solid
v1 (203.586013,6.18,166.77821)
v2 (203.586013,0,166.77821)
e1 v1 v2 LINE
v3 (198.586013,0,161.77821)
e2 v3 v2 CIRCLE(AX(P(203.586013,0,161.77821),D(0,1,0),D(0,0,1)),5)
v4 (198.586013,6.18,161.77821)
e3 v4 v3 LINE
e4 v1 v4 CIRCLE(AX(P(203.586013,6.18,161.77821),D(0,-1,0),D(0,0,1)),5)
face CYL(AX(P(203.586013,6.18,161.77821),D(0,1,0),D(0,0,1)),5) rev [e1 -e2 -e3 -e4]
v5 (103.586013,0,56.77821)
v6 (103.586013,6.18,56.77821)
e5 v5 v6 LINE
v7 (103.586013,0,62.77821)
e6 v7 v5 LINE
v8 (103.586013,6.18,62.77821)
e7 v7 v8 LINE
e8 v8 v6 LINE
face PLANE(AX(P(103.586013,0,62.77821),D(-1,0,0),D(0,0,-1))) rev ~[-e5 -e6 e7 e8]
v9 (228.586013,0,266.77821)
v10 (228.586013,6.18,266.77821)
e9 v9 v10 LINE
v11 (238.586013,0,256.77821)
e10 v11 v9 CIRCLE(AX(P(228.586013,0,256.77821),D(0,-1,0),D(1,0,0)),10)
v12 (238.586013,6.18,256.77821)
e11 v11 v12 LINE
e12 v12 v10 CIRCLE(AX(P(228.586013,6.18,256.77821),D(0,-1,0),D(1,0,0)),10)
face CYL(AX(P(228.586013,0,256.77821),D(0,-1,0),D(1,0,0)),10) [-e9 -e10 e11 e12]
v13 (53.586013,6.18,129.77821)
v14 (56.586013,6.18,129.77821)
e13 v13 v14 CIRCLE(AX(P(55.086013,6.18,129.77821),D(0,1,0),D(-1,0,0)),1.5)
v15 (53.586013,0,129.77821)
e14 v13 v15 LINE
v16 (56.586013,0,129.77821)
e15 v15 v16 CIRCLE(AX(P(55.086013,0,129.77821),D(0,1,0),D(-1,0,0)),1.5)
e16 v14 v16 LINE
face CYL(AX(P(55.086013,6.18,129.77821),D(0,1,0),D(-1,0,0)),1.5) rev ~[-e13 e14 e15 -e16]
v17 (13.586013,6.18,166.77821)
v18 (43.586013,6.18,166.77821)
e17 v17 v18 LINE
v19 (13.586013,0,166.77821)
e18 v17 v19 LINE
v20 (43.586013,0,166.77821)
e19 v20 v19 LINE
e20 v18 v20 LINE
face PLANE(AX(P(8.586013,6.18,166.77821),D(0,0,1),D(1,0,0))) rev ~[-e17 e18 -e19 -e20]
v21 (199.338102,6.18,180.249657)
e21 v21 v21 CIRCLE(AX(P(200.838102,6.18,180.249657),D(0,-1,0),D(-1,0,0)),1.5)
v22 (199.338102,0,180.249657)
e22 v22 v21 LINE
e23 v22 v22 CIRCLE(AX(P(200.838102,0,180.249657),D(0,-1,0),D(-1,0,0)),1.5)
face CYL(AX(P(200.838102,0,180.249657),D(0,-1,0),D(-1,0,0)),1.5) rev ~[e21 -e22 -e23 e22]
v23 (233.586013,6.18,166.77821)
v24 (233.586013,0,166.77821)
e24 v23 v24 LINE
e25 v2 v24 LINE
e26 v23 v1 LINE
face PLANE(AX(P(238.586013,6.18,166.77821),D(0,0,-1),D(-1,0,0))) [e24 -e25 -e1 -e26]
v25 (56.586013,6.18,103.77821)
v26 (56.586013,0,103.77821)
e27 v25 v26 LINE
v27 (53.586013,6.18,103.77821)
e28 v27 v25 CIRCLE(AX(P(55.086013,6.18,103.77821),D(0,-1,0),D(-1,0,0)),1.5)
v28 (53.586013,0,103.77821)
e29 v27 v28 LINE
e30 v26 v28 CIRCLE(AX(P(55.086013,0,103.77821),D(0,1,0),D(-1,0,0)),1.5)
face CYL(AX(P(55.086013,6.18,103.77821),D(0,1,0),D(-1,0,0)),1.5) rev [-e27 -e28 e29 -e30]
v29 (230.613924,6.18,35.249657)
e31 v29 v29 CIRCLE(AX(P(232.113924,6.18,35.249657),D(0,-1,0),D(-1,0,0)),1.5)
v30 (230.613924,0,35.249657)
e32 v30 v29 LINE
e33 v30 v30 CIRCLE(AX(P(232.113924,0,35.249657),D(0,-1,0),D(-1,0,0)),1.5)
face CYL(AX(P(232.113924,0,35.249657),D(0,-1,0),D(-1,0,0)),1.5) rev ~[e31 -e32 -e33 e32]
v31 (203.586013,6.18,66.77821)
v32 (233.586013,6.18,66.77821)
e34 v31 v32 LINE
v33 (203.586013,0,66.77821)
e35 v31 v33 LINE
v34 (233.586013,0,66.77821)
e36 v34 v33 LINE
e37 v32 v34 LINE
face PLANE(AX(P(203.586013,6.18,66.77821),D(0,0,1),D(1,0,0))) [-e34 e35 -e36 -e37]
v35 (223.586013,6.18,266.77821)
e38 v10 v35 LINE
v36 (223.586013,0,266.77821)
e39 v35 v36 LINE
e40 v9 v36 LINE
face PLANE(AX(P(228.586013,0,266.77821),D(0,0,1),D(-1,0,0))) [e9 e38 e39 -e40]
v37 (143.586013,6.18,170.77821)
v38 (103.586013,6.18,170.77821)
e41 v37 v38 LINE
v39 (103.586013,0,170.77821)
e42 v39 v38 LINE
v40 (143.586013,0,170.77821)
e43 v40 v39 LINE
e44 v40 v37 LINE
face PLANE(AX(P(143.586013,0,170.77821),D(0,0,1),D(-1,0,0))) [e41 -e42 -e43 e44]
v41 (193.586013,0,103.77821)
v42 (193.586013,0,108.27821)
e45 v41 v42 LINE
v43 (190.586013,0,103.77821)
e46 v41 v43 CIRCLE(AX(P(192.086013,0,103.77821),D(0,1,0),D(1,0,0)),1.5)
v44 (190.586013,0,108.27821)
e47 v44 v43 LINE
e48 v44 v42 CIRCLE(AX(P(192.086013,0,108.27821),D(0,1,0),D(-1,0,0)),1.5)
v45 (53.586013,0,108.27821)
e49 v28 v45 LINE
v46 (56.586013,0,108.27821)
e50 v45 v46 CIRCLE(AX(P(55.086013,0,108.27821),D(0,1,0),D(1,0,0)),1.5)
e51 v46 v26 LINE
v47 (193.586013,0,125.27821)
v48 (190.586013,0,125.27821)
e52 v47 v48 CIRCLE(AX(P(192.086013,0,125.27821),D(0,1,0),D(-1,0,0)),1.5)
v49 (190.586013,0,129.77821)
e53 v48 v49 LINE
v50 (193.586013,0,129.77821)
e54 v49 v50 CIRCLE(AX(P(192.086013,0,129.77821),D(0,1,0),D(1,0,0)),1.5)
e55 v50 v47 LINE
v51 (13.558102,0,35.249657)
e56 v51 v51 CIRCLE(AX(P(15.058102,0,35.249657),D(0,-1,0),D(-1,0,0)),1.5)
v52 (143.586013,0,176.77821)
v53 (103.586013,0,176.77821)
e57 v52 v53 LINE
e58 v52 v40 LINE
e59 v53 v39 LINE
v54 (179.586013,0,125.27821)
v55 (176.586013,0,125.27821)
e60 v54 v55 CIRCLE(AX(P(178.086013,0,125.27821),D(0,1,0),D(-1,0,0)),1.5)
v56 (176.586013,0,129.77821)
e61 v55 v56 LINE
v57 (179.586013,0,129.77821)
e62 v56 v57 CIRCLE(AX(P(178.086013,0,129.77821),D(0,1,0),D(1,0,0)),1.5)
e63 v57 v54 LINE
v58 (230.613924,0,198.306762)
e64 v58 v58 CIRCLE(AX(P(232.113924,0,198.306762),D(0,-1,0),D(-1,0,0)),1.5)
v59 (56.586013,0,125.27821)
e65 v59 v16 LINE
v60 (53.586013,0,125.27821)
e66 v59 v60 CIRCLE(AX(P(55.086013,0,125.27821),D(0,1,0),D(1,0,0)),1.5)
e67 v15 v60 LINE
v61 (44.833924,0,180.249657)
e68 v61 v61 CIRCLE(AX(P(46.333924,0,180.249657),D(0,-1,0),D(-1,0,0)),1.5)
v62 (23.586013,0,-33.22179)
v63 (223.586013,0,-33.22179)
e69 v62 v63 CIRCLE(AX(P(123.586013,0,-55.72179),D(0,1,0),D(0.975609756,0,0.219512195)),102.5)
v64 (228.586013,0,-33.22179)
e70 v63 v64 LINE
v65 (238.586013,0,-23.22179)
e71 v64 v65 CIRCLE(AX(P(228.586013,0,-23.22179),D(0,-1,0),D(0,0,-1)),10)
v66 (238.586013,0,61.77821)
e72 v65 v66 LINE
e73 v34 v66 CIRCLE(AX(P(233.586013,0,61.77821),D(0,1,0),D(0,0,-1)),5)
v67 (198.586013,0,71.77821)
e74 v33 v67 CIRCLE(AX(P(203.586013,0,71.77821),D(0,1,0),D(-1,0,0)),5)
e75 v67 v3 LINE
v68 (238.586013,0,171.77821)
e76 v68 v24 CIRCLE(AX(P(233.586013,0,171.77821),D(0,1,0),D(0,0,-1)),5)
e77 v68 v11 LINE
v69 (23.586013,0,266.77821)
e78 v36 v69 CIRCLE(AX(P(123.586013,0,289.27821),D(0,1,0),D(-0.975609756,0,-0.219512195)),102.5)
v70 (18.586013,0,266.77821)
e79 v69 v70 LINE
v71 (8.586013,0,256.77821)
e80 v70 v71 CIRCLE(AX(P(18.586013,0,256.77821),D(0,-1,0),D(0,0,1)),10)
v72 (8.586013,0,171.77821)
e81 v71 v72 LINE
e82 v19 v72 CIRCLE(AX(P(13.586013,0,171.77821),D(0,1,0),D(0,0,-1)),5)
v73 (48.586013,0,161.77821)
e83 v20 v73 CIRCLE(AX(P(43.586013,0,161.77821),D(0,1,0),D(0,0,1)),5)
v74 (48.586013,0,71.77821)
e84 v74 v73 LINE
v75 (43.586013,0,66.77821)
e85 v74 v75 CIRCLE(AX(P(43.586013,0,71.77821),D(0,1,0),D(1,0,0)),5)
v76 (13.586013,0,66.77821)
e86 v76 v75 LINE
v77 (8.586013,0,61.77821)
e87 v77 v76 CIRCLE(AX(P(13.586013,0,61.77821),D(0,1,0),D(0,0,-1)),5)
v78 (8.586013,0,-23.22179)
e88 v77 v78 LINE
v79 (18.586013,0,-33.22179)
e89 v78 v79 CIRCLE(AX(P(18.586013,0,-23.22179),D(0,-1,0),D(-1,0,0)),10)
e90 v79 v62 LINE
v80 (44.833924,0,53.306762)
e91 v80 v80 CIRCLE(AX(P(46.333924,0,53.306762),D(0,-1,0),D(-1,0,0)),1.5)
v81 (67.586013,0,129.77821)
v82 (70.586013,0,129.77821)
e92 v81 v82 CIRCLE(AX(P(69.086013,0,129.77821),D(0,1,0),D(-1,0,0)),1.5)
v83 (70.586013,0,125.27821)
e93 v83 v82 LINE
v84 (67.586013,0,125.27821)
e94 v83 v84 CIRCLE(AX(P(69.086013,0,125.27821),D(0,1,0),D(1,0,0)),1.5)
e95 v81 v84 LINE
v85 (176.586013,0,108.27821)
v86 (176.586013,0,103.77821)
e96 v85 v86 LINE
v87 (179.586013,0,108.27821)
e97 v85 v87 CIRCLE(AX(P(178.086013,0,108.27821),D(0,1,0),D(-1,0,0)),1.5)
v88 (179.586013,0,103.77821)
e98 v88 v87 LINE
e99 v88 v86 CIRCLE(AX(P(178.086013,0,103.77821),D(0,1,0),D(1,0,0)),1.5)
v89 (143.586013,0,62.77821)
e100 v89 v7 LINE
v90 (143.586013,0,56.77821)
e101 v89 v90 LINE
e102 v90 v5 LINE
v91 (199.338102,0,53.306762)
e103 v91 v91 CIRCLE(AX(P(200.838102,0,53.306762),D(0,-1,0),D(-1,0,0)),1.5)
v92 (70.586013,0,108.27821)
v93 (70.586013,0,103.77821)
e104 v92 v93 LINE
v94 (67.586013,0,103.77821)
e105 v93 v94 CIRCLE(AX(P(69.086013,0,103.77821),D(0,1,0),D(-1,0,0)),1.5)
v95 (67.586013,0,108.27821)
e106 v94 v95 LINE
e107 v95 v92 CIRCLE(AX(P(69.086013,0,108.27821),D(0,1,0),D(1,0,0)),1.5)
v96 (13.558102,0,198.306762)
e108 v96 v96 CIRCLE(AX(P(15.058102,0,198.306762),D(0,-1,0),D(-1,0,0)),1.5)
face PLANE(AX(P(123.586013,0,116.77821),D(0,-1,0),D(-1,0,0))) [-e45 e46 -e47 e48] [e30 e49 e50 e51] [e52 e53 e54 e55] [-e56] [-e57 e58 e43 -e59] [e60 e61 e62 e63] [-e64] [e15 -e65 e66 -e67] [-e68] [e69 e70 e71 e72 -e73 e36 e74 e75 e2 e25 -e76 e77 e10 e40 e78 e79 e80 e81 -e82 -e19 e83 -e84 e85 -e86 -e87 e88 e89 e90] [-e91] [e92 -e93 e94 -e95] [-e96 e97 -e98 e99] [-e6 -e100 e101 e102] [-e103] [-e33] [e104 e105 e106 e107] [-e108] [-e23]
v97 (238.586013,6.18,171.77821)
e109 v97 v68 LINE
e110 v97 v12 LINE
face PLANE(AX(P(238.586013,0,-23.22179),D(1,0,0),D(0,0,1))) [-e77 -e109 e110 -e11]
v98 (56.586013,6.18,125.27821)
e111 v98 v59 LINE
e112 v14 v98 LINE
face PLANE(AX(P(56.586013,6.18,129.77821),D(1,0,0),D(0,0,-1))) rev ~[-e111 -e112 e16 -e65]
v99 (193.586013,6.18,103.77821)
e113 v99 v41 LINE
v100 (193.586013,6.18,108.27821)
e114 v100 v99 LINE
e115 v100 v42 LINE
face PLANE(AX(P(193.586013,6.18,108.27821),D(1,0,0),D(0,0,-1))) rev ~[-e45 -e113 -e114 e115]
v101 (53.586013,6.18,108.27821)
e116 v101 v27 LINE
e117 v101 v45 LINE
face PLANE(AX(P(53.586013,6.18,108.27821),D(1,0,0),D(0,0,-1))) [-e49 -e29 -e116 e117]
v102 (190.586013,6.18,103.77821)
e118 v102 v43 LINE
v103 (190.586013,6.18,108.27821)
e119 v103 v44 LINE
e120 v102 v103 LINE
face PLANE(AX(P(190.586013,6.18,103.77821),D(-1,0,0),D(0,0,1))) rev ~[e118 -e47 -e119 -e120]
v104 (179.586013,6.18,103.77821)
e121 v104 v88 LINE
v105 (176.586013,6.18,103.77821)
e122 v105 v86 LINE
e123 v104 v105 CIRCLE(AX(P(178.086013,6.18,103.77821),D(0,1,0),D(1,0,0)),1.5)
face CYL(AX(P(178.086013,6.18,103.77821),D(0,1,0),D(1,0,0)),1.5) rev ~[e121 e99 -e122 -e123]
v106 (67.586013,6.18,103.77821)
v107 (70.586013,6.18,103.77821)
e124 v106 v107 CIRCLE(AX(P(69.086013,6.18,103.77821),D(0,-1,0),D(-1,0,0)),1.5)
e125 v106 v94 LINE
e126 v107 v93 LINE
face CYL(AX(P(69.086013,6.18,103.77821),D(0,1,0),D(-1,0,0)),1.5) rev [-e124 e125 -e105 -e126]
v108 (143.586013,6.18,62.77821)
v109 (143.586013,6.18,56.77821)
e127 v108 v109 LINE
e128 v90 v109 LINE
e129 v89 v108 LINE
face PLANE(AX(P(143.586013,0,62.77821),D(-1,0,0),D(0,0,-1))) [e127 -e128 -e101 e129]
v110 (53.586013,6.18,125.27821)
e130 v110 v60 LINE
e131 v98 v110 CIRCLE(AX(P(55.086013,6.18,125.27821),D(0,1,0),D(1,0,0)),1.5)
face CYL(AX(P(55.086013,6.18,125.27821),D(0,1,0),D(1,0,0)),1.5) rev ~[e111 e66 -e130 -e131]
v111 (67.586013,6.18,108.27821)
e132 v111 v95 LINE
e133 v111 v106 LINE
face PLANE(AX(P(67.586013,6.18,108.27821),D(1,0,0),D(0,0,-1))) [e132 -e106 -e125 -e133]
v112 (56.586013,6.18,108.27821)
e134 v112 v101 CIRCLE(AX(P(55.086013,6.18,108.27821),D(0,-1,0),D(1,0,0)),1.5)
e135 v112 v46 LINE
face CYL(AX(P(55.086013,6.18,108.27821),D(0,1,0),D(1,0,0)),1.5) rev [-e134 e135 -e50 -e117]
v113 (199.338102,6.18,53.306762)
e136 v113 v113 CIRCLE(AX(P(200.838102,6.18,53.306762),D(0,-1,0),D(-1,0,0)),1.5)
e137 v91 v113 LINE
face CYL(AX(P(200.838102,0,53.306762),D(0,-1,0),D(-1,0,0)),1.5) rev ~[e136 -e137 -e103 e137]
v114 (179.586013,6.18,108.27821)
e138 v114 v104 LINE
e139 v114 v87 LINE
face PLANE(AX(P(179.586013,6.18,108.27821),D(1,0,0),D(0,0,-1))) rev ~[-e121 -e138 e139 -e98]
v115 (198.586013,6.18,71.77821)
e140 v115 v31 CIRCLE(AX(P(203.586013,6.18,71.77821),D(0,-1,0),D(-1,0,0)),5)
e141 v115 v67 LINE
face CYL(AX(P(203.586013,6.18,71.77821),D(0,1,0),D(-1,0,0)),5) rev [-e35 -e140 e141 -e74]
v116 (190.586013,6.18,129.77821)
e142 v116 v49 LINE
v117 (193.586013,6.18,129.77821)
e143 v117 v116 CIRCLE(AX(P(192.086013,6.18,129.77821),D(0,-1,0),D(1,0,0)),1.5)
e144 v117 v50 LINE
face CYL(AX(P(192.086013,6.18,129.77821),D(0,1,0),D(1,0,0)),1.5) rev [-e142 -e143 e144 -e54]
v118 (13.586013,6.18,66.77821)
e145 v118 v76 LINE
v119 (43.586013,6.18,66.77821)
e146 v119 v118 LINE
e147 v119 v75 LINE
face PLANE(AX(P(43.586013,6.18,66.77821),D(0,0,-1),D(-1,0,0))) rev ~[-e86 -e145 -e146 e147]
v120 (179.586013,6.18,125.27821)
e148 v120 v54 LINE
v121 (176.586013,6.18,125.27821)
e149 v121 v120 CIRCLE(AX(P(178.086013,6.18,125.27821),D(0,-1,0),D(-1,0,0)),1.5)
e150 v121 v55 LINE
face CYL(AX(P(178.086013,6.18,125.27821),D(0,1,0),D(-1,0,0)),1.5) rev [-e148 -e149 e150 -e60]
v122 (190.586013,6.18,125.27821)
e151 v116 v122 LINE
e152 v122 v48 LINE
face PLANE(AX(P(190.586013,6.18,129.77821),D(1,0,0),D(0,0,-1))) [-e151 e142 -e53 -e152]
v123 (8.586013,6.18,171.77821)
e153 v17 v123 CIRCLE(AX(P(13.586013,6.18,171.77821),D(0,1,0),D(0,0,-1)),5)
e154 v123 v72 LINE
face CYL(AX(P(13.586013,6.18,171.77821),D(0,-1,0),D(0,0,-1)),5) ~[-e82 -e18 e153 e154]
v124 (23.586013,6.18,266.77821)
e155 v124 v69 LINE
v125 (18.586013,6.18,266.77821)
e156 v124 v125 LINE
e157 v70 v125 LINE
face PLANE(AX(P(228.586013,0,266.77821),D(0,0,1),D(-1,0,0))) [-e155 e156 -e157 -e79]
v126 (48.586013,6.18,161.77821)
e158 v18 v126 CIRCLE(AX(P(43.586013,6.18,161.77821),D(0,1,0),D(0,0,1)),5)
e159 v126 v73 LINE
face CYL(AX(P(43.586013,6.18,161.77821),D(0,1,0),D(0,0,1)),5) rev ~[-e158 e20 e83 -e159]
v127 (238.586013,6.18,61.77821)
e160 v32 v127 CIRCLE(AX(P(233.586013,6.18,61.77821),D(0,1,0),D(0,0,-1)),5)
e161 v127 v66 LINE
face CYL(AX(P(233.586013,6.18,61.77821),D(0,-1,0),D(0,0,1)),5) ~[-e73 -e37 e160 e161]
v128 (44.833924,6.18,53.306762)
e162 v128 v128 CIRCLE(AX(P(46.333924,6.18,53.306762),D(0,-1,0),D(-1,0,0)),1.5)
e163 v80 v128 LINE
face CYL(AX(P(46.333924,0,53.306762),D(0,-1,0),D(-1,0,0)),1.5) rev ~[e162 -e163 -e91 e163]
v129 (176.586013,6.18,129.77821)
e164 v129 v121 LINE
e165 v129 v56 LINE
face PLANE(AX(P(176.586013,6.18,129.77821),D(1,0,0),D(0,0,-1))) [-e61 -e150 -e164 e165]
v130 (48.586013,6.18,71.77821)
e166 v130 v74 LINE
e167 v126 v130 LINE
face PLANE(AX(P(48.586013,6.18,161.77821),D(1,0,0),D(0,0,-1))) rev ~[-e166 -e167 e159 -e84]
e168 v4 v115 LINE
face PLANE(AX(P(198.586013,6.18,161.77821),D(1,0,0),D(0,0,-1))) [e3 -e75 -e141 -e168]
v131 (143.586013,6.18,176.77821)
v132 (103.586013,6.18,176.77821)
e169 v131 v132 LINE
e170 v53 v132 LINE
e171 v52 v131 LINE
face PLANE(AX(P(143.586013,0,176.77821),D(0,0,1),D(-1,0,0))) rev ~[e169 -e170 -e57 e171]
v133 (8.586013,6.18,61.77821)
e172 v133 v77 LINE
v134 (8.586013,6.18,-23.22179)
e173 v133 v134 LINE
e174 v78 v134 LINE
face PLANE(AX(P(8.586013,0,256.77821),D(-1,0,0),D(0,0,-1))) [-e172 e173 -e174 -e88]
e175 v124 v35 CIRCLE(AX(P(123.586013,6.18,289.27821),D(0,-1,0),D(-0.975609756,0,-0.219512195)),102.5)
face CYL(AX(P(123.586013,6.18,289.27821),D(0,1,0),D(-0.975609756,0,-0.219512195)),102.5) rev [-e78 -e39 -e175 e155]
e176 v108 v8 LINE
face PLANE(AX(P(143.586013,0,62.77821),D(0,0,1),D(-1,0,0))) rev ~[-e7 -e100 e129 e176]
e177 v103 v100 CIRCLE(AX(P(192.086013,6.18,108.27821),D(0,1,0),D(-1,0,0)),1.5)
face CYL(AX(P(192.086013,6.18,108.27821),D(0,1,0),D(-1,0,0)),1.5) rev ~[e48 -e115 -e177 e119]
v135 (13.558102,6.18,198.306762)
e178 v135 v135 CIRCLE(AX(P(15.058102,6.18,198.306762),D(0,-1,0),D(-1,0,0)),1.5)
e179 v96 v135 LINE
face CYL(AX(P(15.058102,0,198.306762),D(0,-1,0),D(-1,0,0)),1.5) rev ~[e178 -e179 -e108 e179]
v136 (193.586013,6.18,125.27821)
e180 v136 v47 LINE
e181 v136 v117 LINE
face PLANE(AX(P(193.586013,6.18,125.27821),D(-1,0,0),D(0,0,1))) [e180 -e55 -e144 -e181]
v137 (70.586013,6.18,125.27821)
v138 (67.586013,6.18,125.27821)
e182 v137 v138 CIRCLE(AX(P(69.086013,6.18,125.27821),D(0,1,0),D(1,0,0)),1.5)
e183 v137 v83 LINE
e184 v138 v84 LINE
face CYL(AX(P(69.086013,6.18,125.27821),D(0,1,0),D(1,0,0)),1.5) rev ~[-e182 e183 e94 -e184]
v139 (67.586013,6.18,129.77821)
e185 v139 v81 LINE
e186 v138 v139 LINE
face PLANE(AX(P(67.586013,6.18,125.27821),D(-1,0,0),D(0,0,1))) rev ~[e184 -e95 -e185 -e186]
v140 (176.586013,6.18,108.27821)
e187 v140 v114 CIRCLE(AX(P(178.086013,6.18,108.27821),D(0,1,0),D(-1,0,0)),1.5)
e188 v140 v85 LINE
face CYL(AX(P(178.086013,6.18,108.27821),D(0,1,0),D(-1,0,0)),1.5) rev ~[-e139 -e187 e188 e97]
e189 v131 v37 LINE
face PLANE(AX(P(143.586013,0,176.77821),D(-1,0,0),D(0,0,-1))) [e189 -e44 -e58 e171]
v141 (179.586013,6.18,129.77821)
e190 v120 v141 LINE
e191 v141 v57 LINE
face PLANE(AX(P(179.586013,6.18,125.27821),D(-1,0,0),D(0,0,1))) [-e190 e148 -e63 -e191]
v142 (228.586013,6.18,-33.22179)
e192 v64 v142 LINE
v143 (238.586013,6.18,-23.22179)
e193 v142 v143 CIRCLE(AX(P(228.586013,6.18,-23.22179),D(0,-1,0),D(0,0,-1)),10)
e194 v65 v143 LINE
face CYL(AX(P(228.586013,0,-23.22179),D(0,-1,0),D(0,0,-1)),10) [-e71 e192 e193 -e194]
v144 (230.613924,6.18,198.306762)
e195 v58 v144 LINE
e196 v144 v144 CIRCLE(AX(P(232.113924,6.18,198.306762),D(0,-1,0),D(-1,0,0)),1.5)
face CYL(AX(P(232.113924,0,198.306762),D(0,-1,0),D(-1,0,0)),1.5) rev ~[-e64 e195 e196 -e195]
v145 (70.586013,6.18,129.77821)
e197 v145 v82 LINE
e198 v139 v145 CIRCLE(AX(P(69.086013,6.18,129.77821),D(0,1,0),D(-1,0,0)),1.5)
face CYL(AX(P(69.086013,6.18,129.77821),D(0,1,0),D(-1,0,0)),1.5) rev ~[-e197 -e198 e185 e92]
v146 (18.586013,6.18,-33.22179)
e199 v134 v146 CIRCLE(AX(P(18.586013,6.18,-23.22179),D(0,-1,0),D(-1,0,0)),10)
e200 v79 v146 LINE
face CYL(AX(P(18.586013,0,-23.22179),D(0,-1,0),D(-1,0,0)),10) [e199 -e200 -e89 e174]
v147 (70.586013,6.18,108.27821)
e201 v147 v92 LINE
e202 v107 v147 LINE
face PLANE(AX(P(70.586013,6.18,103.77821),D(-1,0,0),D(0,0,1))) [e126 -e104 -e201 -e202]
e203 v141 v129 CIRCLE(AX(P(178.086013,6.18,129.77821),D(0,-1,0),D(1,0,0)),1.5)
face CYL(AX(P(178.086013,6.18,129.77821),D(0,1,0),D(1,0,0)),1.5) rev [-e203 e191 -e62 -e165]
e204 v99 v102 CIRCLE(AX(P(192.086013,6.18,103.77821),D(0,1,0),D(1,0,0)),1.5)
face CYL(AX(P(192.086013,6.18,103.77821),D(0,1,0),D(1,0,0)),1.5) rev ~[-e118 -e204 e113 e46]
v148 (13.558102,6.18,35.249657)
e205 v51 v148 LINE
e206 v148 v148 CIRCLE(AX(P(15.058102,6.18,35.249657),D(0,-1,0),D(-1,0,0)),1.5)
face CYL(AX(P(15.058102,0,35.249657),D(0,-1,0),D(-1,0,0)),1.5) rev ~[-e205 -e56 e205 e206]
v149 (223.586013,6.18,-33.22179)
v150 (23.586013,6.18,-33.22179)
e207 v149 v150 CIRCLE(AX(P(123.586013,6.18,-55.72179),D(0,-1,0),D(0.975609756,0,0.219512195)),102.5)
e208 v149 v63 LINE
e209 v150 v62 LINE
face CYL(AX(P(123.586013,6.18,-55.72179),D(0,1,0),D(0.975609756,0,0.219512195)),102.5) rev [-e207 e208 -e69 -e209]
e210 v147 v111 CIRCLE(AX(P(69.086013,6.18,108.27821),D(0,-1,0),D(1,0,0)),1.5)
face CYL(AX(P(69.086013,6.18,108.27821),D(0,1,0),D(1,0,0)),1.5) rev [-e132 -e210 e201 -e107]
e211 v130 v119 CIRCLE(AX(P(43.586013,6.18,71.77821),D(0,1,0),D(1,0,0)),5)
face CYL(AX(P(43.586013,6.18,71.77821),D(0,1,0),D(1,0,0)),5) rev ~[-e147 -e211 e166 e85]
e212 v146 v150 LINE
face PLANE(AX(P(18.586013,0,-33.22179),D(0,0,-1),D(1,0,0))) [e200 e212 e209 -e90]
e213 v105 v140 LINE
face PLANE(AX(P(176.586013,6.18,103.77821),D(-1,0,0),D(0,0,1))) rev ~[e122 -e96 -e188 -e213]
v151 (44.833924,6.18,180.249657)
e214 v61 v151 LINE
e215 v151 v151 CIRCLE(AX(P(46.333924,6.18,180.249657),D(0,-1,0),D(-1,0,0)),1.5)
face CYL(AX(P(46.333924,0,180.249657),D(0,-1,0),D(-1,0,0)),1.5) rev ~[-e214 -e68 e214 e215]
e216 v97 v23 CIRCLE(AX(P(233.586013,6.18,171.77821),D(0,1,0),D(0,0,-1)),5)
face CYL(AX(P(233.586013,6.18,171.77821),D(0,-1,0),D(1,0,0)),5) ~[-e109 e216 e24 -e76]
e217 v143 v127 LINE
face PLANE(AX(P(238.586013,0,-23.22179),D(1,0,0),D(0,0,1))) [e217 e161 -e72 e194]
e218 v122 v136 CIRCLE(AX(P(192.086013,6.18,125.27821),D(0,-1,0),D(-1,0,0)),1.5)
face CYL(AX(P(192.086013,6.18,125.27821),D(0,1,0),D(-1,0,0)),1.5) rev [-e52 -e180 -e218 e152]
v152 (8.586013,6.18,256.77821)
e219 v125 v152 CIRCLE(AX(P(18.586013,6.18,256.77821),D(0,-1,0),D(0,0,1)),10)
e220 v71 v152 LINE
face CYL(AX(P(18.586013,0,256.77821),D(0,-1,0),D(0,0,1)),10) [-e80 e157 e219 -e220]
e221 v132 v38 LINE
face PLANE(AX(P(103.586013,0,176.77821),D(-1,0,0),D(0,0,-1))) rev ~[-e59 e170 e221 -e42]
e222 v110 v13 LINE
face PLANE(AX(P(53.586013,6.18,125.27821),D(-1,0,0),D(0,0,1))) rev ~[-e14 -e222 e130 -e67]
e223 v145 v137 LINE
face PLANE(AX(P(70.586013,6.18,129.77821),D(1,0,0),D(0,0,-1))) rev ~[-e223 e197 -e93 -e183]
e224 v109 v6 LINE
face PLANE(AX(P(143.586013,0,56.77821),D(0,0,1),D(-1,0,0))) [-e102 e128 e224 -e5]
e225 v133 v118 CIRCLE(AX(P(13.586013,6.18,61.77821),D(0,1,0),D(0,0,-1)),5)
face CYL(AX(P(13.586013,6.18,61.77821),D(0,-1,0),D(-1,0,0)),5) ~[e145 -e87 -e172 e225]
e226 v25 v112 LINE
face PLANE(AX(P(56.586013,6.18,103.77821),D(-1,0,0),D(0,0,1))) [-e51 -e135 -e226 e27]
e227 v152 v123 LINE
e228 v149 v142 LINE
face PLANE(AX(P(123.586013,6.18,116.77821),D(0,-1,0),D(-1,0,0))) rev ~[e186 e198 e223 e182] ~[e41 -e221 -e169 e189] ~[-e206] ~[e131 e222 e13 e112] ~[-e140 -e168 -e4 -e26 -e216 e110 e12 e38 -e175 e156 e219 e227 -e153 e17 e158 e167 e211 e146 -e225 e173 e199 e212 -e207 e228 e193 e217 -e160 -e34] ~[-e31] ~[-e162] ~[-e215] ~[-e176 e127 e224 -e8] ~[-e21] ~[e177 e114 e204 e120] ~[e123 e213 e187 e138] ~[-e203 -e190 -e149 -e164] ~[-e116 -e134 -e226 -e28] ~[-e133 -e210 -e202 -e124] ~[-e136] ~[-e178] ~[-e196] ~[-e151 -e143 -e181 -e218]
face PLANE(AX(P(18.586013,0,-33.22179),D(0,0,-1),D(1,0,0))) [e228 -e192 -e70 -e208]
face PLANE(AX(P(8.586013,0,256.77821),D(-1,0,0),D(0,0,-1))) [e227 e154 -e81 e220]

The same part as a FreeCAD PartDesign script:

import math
import FreeCAD as App
import Part
import Sketcher
from FreeCAD import Vector
Q = App.Units.Quantity


def edges_at(feature, points):
    """Names of the edges that pass closest to the given points."""
    edges = feature.Shape.Edges
    near = lambda p: min(range(len(edges)), key=lambda i: edges[i].distToShape(Part.Vertex(*p))[0])
    return sorted({f"Edge{near(p) + 1}" for p in points})

doc = App.newDocument("Part")
body = doc.addObject("PartDesign::Body", "Body")

sketch1 = body.newObject("Sketcher::SketchObject", "Sketch")
sketch1.AttachmentSupport = (doc.getObject("XZ_Plane"), [""])
sketch1.MapMode = "FlatFace"
sketch1.addGeometry(Part.LineSegment(Vector(228.586013, -33.22179, 0), Vector(18.586013, -33.22179, 0)), False)
sketch1.addGeometry(Part.ArcOfCircle(Part.Circle(Vector(18.586013, -23.22179, 0), Vector(0, 0, 1), 10), math.radians(180), math.radians(270)), False)
sketch1.addGeometry(Part.LineSegment(Vector(8.586013, -23.22179, 0), Vector(8.586013, 256.77821, 0)), False)
sketch1.addGeometry(Part.ArcOfCircle(Part.Circle(Vector(18.586013, 256.77821, 0), Vector(0, 0, 1), 10), math.radians(90), math.radians(180)), False)
sketch1.addGeometry(Part.LineSegment(Vector(18.586013, 266.77821, 0), Vector(228.586013, 266.77821, 0)), False)
sketch1.addGeometry(Part.ArcOfCircle(Part.Circle(Vector(228.586013, 256.77821, 0), Vector(0, 0, 1), 10), math.radians(0), math.radians(90)), False)
sketch1.addGeometry(Part.LineSegment(Vector(238.586013, 256.77821, 0), Vector(238.586013, -23.22179, 0)), False)
sketch1.addGeometry(Part.ArcOfCircle(Part.Circle(Vector(228.586013, -23.22179, 0), Vector(0, 0, 1), 10), math.radians(-90), math.radians(0)), False)
sketch1.addConstraint(Sketcher.Constraint("Tangent", 0, 2, 1, 2))
sketch1.addConstraint(Sketcher.Constraint("Tangent", 1, 1, 2, 1))
sketch1.addConstraint(Sketcher.Constraint("Tangent", 2, 2, 3, 2))
sketch1.addConstraint(Sketcher.Constraint("Tangent", 3, 1, 4, 1))
sketch1.addConstraint(Sketcher.Constraint("Tangent", 4, 2, 5, 2))
sketch1.addConstraint(Sketcher.Constraint("Tangent", 5, 1, 6, 1))
sketch1.addConstraint(Sketcher.Constraint("Tangent", 6, 2, 7, 2))
sketch1.addConstraint(Sketcher.Constraint("Tangent", 7, 1, 0, 1))
sketch1.addConstraint(Sketcher.Constraint("Horizontal", 0))
sketch1.addConstraint(Sketcher.Constraint("Vertical", 2))
sketch1.addConstraint(Sketcher.Constraint("Horizontal", 4))
sketch1.addConstraint(Sketcher.Constraint("Vertical", 6))
sketch1.addConstraint(Sketcher.Constraint("Equal", 1, 3))
sketch1.addConstraint(Sketcher.Constraint("Equal", 3, 5))
sketch1.addConstraint(Sketcher.Constraint("Equal", 5, 7))
sketch1.addConstraint(Sketcher.Constraint("Radius", 1, Q("10 mm")))
sketch1.addConstraint(Sketcher.Constraint("DistanceX", 0, 2, 0, 1, Q("210 mm")))
sketch1.addConstraint(Sketcher.Constraint("DistanceY", 2, 1, 2, 2, Q("280 mm")))
sketch1.addConstraint(Sketcher.Constraint("DistanceY", 1, 3, -1, 1, Q("23.22179 mm")))
sketch1.addConstraint(Sketcher.Constraint("DistanceX", -1, 1, 1, 3, Q("18.586013 mm")))
pad1 = body.newObject("PartDesign::Pad", "Pad")
pad1.Profile = sketch1
pad1.Length = 6.18
pad1.Reversed = True

sketch2 = body.newObject("Sketcher::SketchObject", "Sketch001")
sketch2.AttachmentSupport = (doc.getObject("XZ_Plane"), [""])
sketch2.MapMode = "FlatFace"
sketch2.AttachmentOffset = App.Placement(Vector(0, 0, -6.18), App.Rotation())
sketch2.addGeometry(Part.LineSegment(Vector(48.586013, 161.77821, 0), Vector(48.586013, 71.77821, 0)), False)
sketch2.addGeometry(Part.ArcOfCircle(Part.Circle(Vector(43.586013, 71.77821, 0), Vector(0, 0, 1), 5), math.radians(-90), math.radians(0)), False)
sketch2.addGeometry(Part.LineSegment(Vector(43.586013, 66.77821, 0), Vector(8.586013, 66.77821, 0)), False)
sketch2.addGeometry(Part.LineSegment(Vector(8.586013, 66.77821, 0), Vector(8.586013, 166.77821, 0)), False)
sketch2.addGeometry(Part.LineSegment(Vector(8.586013, 166.77821, 0), Vector(43.586013, 166.77821, 0)), False)
sketch2.addGeometry(Part.ArcOfCircle(Part.Circle(Vector(43.586013, 161.77821, 0), Vector(0, 0, 1), 5), math.radians(0), math.radians(90)), False)
sketch2.addGeometry(Part.LineSegment(Vector(56.586013, 108.27821, 0), Vector(56.586013, 103.77821, 0)), False)
sketch2.addGeometry(Part.ArcOfCircle(Part.Circle(Vector(55.086013, 103.77821, 0), Vector(0, 0, 1), 1.5), math.radians(180), math.radians(360)), False)
sketch2.addGeometry(Part.LineSegment(Vector(53.586013, 103.77821, 0), Vector(53.586013, 108.27821, 0)), False)
sketch2.addGeometry(Part.ArcOfCircle(Part.Circle(Vector(55.086013, 108.27821, 0), Vector(0, 0, 1), 1.5), math.radians(0), math.radians(180)), False)
sketch2.addGeometry(Part.LineSegment(Vector(70.586013, 108.27821, 0), Vector(70.586013, 103.77821, 0)), False)
sketch2.addGeometry(Part.ArcOfCircle(Part.Circle(Vector(69.086013, 103.77821, 0), Vector(0, 0, 1), 1.5), math.radians(180), math.radians(360)), False)
sketch2.addGeometry(Part.LineSegment(Vector(67.586013, 103.77821, 0), Vector(67.586013, 108.27821, 0)), False)
sketch2.addGeometry(Part.ArcOfCircle(Part.Circle(Vector(69.086013, 108.27821, 0), Vector(0, 0, 1), 1.5), math.radians(0), math.radians(180)), False)
sketch2.addGeometry(Part.LineSegment(Vector(70.586013, 129.77821, 0), Vector(70.586013, 125.27821, 0)), False)
sketch2.addGeometry(Part.ArcOfCircle(Part.Circle(Vector(69.086013, 125.27821, 0), Vector(0, 0, 1), 1.5), math.radians(180), math.radians(360)), False)
sketch2.addGeometry(Part.LineSegment(Vector(67.586013, 125.27821, 0), Vector(67.586013, 129.77821, 0)), False)
sketch2.addGeometry(Part.ArcOfCircle(Part.Circle(Vector(69.086013, 129.77821, 0), Vector(0, 0, 1), 1.5), math.radians(0), math.radians(180)), False)
sketch2.addGeometry(Part.LineSegment(Vector(56.586013, 129.77821, 0), Vector(56.586013, 125.27821, 0)), False)
sketch2.addGeometry(Part.ArcOfCircle(Part.Circle(Vector(55.086013, 125.27821, 0), Vector(0, 0, 1), 1.5), math.radians(180), math.radians(360)), False)
sketch2.addGeometry(Part.LineSegment(Vector(53.586013, 125.27821, 0), Vector(53.586013, 129.77821, 0)), False)
sketch2.addGeometry(Part.ArcOfCircle(Part.Circle(Vector(55.086013, 129.77821, 0), Vector(0, 0, 1), 1.5), math.radians(0), math.radians(180)), False)
sketch2.addGeometry(Part.LineSegment(Vector(176.586013, 125.27821, 0), Vector(176.586013, 129.77821, 0)), False)
sketch2.addGeometry(Part.ArcOfCircle(Part.Circle(Vector(178.086013, 129.77821, 0), Vector(0, 0, 1), 1.5), math.radians(0), math.radians(180)), False)
sketch2.addGeometry(Part.LineSegment(Vector(179.586013, 129.77821, 0), Vector(179.586013, 125.27821, 0)), False)
sketch2.addGeometry(Part.ArcOfCircle(Part.Circle(Vector(178.086013, 125.27821, 0), Vector(0, 0, 1), 1.5), math.radians(180), math.radians(360)), False)
sketch2.addGeometry(Part.LineSegment(Vector(190.586013, 125.27821, 0), Vector(190.586013, 129.77821, 0)), False)
sketch2.addGeometry(Part.ArcOfCircle(Part.Circle(Vector(192.086013, 129.77821, 0), Vector(0, 0, 1), 1.5), math.radians(0), math.radians(180)), False)
sketch2.addGeometry(Part.LineSegment(Vector(193.586013, 129.77821, 0), Vector(193.586013, 125.27821, 0)), False)
sketch2.addGeometry(Part.ArcOfCircle(Part.Circle(Vector(192.086013, 125.27821, 0), Vector(0, 0, 1), 1.5), math.radians(180), math.radians(360)), False)
sketch2.addGeometry(Part.LineSegment(Vector(190.586013, 103.77821, 0), Vector(190.586013, 108.27821, 0)), False)
sketch2.addGeometry(Part.ArcOfCircle(Part.Circle(Vector(192.086013, 108.27821, 0), Vector(0, 0, 1), 1.5), math.radians(0), math.radians(180)), False)
sketch2.addGeometry(Part.LineSegment(Vector(193.586013, 108.27821, 0), Vector(193.586013, 103.77821, 0)), False)
sketch2.addGeometry(Part.ArcOfCircle(Part.Circle(Vector(192.086013, 103.77821, 0), Vector(0, 0, 1), 1.5), math.radians(180), math.radians(360)), False)
sketch2.addGeometry(Part.LineSegment(Vector(176.586013, 103.77821, 0), Vector(176.586013, 108.27821, 0)), False)
sketch2.addGeometry(Part.ArcOfCircle(Part.Circle(Vector(178.086013, 108.27821, 0), Vector(0, 0, 1), 1.5), math.radians(0), math.radians(180)), False)
sketch2.addGeometry(Part.LineSegment(Vector(179.586013, 108.27821, 0), Vector(179.586013, 103.77821, 0)), False)
sketch2.addGeometry(Part.ArcOfCircle(Part.Circle(Vector(178.086013, 103.77821, 0), Vector(0, 0, 1), 1.5), math.radians(180), math.radians(360)), False)
sketch2.addGeometry(Part.LineSegment(Vector(198.586013, 71.77821, 0), Vector(198.586013, 161.77821, 0)), False)
sketch2.addGeometry(Part.ArcOfCircle(Part.Circle(Vector(203.586013, 161.77821, 0), Vector(0, 0, 1), 5), math.radians(90), math.radians(180)), False)
sketch2.addGeometry(Part.LineSegment(Vector(203.586013, 166.77821, 0), Vector(238.586013, 166.77821, 0)), False)
sketch2.addGeometry(Part.LineSegment(Vector(238.586013, 166.77821, 0), Vector(238.586013, 66.77821, 0)), False)
sketch2.addGeometry(Part.LineSegment(Vector(238.586013, 66.77821, 0), Vector(203.586013, 66.77821, 0)), False)
sketch2.addGeometry(Part.ArcOfCircle(Part.Circle(Vector(203.586013, 71.77821, 0), Vector(0, 0, 1), 5), math.radians(180), math.radians(270)), False)
sketch2.addConstraint(Sketcher.Constraint("Tangent", 0, 2, 1, 2))
sketch2.addConstraint(Sketcher.Constraint("Tangent", 1, 1, 2, 1))
sketch2.addConstraint(Sketcher.Constraint("Coincident", 2, 2, 3, 1))
sketch2.addConstraint(Sketcher.Constraint("Coincident", 3, 2, 4, 1))
sketch2.addConstraint(Sketcher.Constraint("Tangent", 4, 2, 5, 2))
sketch2.addConstraint(Sketcher.Constraint("Tangent", 5, 1, 0, 1))
sketch2.addConstraint(Sketcher.Constraint("Tangent", 6, 2, 7, 2))
sketch2.addConstraint(Sketcher.Constraint("Tangent", 7, 1, 8, 1))
sketch2.addConstraint(Sketcher.Constraint("Tangent", 8, 2, 9, 2))
sketch2.addConstraint(Sketcher.Constraint("Tangent", 9, 1, 6, 1))
sketch2.addConstraint(Sketcher.Constraint("Tangent", 10, 2, 11, 2))
sketch2.addConstraint(Sketcher.Constraint("Tangent", 11, 1, 12, 1))
sketch2.addConstraint(Sketcher.Constraint("Tangent", 12, 2, 13, 2))
sketch2.addConstraint(Sketcher.Constraint("Tangent", 13, 1, 10, 1))
sketch2.addConstraint(Sketcher.Constraint("Tangent", 14, 2, 15, 2))
sketch2.addConstraint(Sketcher.Constraint("Tangent", 15, 1, 16, 1))
sketch2.addConstraint(Sketcher.Constraint("Tangent", 16, 2, 17, 2))
sketch2.addConstraint(Sketcher.Constraint("Tangent", 17, 1, 14, 1))
sketch2.addConstraint(Sketcher.Constraint("Tangent", 18, 2, 19, 2))
sketch2.addConstraint(Sketcher.Constraint("Tangent", 19, 1, 20, 1))
sketch2.addConstraint(Sketcher.Constraint("Tangent", 20, 2, 21, 2))
sketch2.addConstraint(Sketcher.Constraint("Tangent", 21, 1, 18, 1))
sketch2.addConstraint(Sketcher.Constraint("Tangent", 22, 2, 23, 2))
sketch2.addConstraint(Sketcher.Constraint("Tangent", 23, 1, 24, 1))
sketch2.addConstraint(Sketcher.Constraint("Tangent", 24, 2, 25, 2))
sketch2.addConstraint(Sketcher.Constraint("Tangent", 25, 1, 22, 1))
sketch2.addConstraint(Sketcher.Constraint("Tangent", 26, 2, 27, 2))
sketch2.addConstraint(Sketcher.Constraint("Tangent", 27, 1, 28, 1))
sketch2.addConstraint(Sketcher.Constraint("Tangent", 28, 2, 29, 2))
sketch2.addConstraint(Sketcher.Constraint("Tangent", 29, 1, 26, 1))
sketch2.addConstraint(Sketcher.Constraint("Tangent", 30, 2, 31, 2))
sketch2.addConstraint(Sketcher.Constraint("Tangent", 31, 1, 32, 1))
sketch2.addConstraint(Sketcher.Constraint("Tangent", 32, 2, 33, 2))
sketch2.addConstraint(Sketcher.Constraint("Tangent", 33, 1, 30, 1))
sketch2.addConstraint(Sketcher.Constraint("Tangent", 34, 2, 35, 2))
sketch2.addConstraint(Sketcher.Constraint("Tangent", 35, 1, 36, 1))
sketch2.addConstraint(Sketcher.Constraint("Tangent", 36, 2, 37, 2))
sketch2.addConstraint(Sketcher.Constraint("Tangent", 37, 1, 34, 1))
sketch2.addConstraint(Sketcher.Constraint("Tangent", 38, 2, 39, 2))
sketch2.addConstraint(Sketcher.Constraint("Tangent", 39, 1, 40, 1))
sketch2.addConstraint(Sketcher.Constraint("Coincident", 40, 2, 41, 1))
sketch2.addConstraint(Sketcher.Constraint("Coincident", 41, 2, 42, 1))
sketch2.addConstraint(Sketcher.Constraint("Tangent", 42, 2, 43, 2))
sketch2.addConstraint(Sketcher.Constraint("Tangent", 43, 1, 38, 1))
sketch2.addConstraint(Sketcher.Constraint("Vertical", 0))
sketch2.addConstraint(Sketcher.Constraint("Horizontal", 2))
sketch2.addConstraint(Sketcher.Constraint("Vertical", 3))
sketch2.addConstraint(Sketcher.Constraint("Horizontal", 4))
sketch2.addConstraint(Sketcher.Constraint("Vertical", 6))
sketch2.addConstraint(Sketcher.Constraint("Vertical", 8))
sketch2.addConstraint(Sketcher.Constraint("Vertical", 10))
sketch2.addConstraint(Sketcher.Constraint("Vertical", 12))
sketch2.addConstraint(Sketcher.Constraint("Vertical", 14))
sketch2.addConstraint(Sketcher.Constraint("Vertical", 16))
sketch2.addConstraint(Sketcher.Constraint("Vertical", 18))
sketch2.addConstraint(Sketcher.Constraint("Vertical", 20))
sketch2.addConstraint(Sketcher.Constraint("Vertical", 22))
sketch2.addConstraint(Sketcher.Constraint("Vertical", 24))
sketch2.addConstraint(Sketcher.Constraint("Vertical", 26))
sketch2.addConstraint(Sketcher.Constraint("Vertical", 28))
sketch2.addConstraint(Sketcher.Constraint("Vertical", 30))
sketch2.addConstraint(Sketcher.Constraint("Vertical", 32))
sketch2.addConstraint(Sketcher.Constraint("Vertical", 34))
sketch2.addConstraint(Sketcher.Constraint("Vertical", 36))
sketch2.addConstraint(Sketcher.Constraint("Vertical", 38))
sketch2.addConstraint(Sketcher.Constraint("Horizontal", 40))
sketch2.addConstraint(Sketcher.Constraint("Vertical", 41))
sketch2.addConstraint(Sketcher.Constraint("Horizontal", 42))
sketch2.addConstraint(Sketcher.Constraint("Equal", 1, 5))
sketch2.addConstraint(Sketcher.Constraint("Equal", 9, 11))
sketch2.addConstraint(Sketcher.Constraint("Equal", 13, 15))
sketch2.addConstraint(Sketcher.Constraint("Equal", 17, 19))
sketch2.addConstraint(Sketcher.Constraint("Equal", 21, 23))
sketch2.addConstraint(Sketcher.Constraint("Equal", 25, 27))
sketch2.addConstraint(Sketcher.Constraint("Equal", 29, 31))
sketch2.addConstraint(Sketcher.Constraint("Equal", 33, 35))
sketch2.addConstraint(Sketcher.Constraint("Equal", 5, 39))
sketch2.addConstraint(Sketcher.Constraint("Equal", 39, 43))
sketch2.addConstraint(Sketcher.Constraint("Horizontal", 7, 3, 11, 3))
sketch2.addConstraint(Sketcher.Constraint("Horizontal", 9, 3, 13, 3))
sketch2.addConstraint(Sketcher.Constraint("Horizontal", 15, 3, 19, 3))
sketch2.addConstraint(Sketcher.Constraint("Horizontal", 17, 3, 21, 3))
sketch2.addConstraint(Sketcher.Constraint("Horizontal", 21, 3, 23, 3))
sketch2.addConstraint(Sketcher.Constraint("Horizontal", 19, 3, 25, 3))
sketch2.addConstraint(Sketcher.Constraint("Horizontal", 23, 3, 27, 3))
sketch2.addConstraint(Sketcher.Constraint("Horizontal", 25, 3, 29, 3))
sketch2.addConstraint(Sketcher.Constraint("Horizontal", 13, 3, 31, 3))
sketch2.addConstraint(Sketcher.Constraint("Horizontal", 11, 3, 33, 3))
sketch2.addConstraint(Sketcher.Constraint("Horizontal", 31, 3, 35, 3))
sketch2.addConstraint(Sketcher.Constraint("Horizontal", 33, 3, 37, 3))
sketch2.addConstraint(Sketcher.Constraint("Horizontal", 5, 3, 39, 3))
sketch2.addConstraint(Sketcher.Constraint("Horizontal", 1, 3, 43, 3))
sketch2.addConstraint(Sketcher.Constraint("Vertical", 13, 3, 15, 3))
sketch2.addConstraint(Sketcher.Constraint("Vertical", 9, 3, 19, 3))
sketch2.addConstraint(Sketcher.Constraint("Vertical", 29, 3, 31, 3))
sketch2.addConstraint(Sketcher.Constraint("Vertical", 25, 3, 35, 3))
sketch2.addConstraint(Sketcher.Constraint("Equal", 4, 40))
sketch2.addConstraint(Sketcher.Constraint("Equal", 12, 14))
sketch2.addConstraint(Sketcher.Constraint("Radius", 1, Q("5 mm")))
sketch2.addConstraint(Sketcher.Constraint("Radius", 7, Q("1.5 mm")))
sketch2.addConstraint(Sketcher.Constraint("DistanceX", 2, 2, 2, 1, Q("35 mm")))
sketch2.addConstraint(Sketcher.Constraint("DistanceY", 0, 2, 0, 1, Q("90 mm")))
sketch2.addConstraint(Sketcher.Constraint("DistanceY", 6, 2, 6, 1, Q("4.5 mm")))
sketch2.addConstraint(Sketcher.Constraint("DistanceY", -1, 1, 1, 3, Q("71.77821 mm")))
sketch2.addConstraint(Sketcher.Constraint("DistanceY", -1, 1, 7, 3, Q("103.77821 mm")))
sketch2.addConstraint(Sketcher.Constraint("DistanceY", -1, 1, 15, 3, Q("125.27821 mm")))
sketch2.addConstraint(Sketcher.Constraint("DistanceX", -1, 1, 1, 3, Q("43.586013 mm")))
sketch2.addConstraint(Sketcher.Constraint("DistanceX", -1, 1, 7, 3, Q("55.086013 mm")))
sketch2.addConstraint(Sketcher.Constraint("DistanceX", -1, 1, 11, 3, Q("69.086013 mm")))
sketch2.addConstraint(Sketcher.Constraint("DistanceX", -1, 1, 23, 3, Q("178.086013 mm")))
sketch2.addConstraint(Sketcher.Constraint("DistanceX", -1, 1, 27, 3, Q("192.086013 mm")))
sketch2.addConstraint(Sketcher.Constraint("DistanceX", -1, 1, 39, 3, Q("203.586013 mm")))
pocket1 = body.newObject("PartDesign::Pocket", "Pocket")
pocket1.Profile = sketch2
pocket1.Type = "ThroughAll"
pocket1.Reversed = True
doc.recompute()

fillet = body.newObject("PartDesign::Fillet", "Fillet")
fillet.Base = (pocket1, edges_at(pocket1, [(8.586, 3.09, 66.778)]))
fillet.Radius = 5
doc.recompute()

fillet2 = body.newObject("PartDesign::Fillet", "Fillet001")
fillet2.Base = (fillet, edges_at(fillet, [(8.586, 3.09, 166.778)]))
fillet2.Radius = 5
doc.recompute()

fillet3 = body.newObject("PartDesign::Fillet", "Fillet002")
fillet3.Base = (fillet2, edges_at(fillet2, [(238.586, 3.09, 166.778)]))
fillet3.Radius = 5
doc.recompute()

fillet4 = body.newObject("PartDesign::Fillet", "Fillet003")
fillet4.Base = (fillet3, edges_at(fillet3, [(238.586, 3.09, 66.778)]))
fillet4.Radius = 5

sketch3 = body.newObject("Sketcher::SketchObject", "Sketch002")
sketch3.AttachmentSupport = (doc.getObject("XZ_Plane"), [""])
sketch3.MapMode = "FlatFace"
sketch3.addGeometry(Part.LineSegment(Vector(143.586013, 56.77821, 0), Vector(143.586013, 62.77821, 0)), False)
sketch3.addGeometry(Part.LineSegment(Vector(143.586013, 62.77821, 0), Vector(103.586013, 62.77821, 0)), False)
sketch3.addGeometry(Part.LineSegment(Vector(103.586013, 62.77821, 0), Vector(103.586013, 56.77821, 0)), False)
sketch3.addGeometry(Part.LineSegment(Vector(103.586013, 56.77821, 0), Vector(143.586013, 56.77821, 0)), False)
sketch3.addGeometry(Part.LineSegment(Vector(143.586013, 170.77821, 0), Vector(143.586013, 176.77821, 0)), False)
sketch3.addGeometry(Part.LineSegment(Vector(143.586013, 176.77821, 0), Vector(103.586013, 176.77821, 0)), False)
sketch3.addGeometry(Part.LineSegment(Vector(103.586013, 176.77821, 0), Vector(103.586013, 170.77821, 0)), False)
sketch3.addGeometry(Part.LineSegment(Vector(103.586013, 170.77821, 0), Vector(143.586013, 170.77821, 0)), False)
sketch3.addGeometry(Part.Circle(Vector(232.113924, 35.249657, 0), Vector(0, 0, 1), 1.5), False)
sketch3.addGeometry(Part.Circle(Vector(200.838102, 53.306762, 0), Vector(0, 0, 1), 1.5), False)
sketch3.addGeometry(Part.Circle(Vector(232.113924, 198.306762, 0), Vector(0, 0, 1), 1.5), False)
sketch3.addGeometry(Part.Circle(Vector(200.838102, 180.249657, 0), Vector(0, 0, 1), 1.5), False)
sketch3.addGeometry(Part.Circle(Vector(15.058102, 198.306762, 0), Vector(0, 0, 1), 1.5), False)
sketch3.addGeometry(Part.Circle(Vector(46.333924, 180.249657, 0), Vector(0, 0, 1), 1.5), False)
sketch3.addGeometry(Part.Circle(Vector(46.333924, 53.306762, 0), Vector(0, 0, 1), 1.5), False)
sketch3.addGeometry(Part.Circle(Vector(15.058102, 35.249657, 0), Vector(0, 0, 1), 1.5), False)
sketch3.addConstraint(Sketcher.Constraint("Coincident", 0, 2, 1, 1))
sketch3.addConstraint(Sketcher.Constraint("Coincident", 1, 2, 2, 1))
sketch3.addConstraint(Sketcher.Constraint("Coincident", 2, 2, 3, 1))
sketch3.addConstraint(Sketcher.Constraint("Coincident", 3, 2, 0, 1))
sketch3.addConstraint(Sketcher.Constraint("Coincident", 4, 2, 5, 1))
sketch3.addConstraint(Sketcher.Constraint("Coincident", 5, 2, 6, 1))
sketch3.addConstraint(Sketcher.Constraint("Coincident", 6, 2, 7, 1))
sketch3.addConstraint(Sketcher.Constraint("Coincident", 7, 2, 4, 1))
sketch3.addConstraint(Sketcher.Constraint("Vertical", 0))
sketch3.addConstraint(Sketcher.Constraint("Horizontal", 1))
sketch3.addConstraint(Sketcher.Constraint("Vertical", 2))
sketch3.addConstraint(Sketcher.Constraint("Horizontal", 3))
sketch3.addConstraint(Sketcher.Constraint("Vertical", 4))
sketch3.addConstraint(Sketcher.Constraint("Horizontal", 5))
sketch3.addConstraint(Sketcher.Constraint("Vertical", 6))
sketch3.addConstraint(Sketcher.Constraint("Horizontal", 7))
sketch3.addConstraint(Sketcher.Constraint("Equal", 8, 9))
sketch3.addConstraint(Sketcher.Constraint("Equal", 9, 10))
sketch3.addConstraint(Sketcher.Constraint("Equal", 10, 11))
sketch3.addConstraint(Sketcher.Constraint("Equal", 11, 12))
sketch3.addConstraint(Sketcher.Constraint("Equal", 12, 13))
sketch3.addConstraint(Sketcher.Constraint("Equal", 13, 14))
sketch3.addConstraint(Sketcher.Constraint("Equal", 14, 15))
sketch3.addConstraint(Sketcher.Constraint("Horizontal", 10, 3, 12, 3))
sketch3.addConstraint(Sketcher.Constraint("Horizontal", 11, 3, 13, 3))
sketch3.addConstraint(Sketcher.Constraint("Horizontal", 9, 3, 14, 3))
sketch3.addConstraint(Sketcher.Constraint("Horizontal", 8, 3, 15, 3))
sketch3.addConstraint(Sketcher.Constraint("Vertical", 8, 3, 10, 3))
sketch3.addConstraint(Sketcher.Constraint("Vertical", 9, 3, 11, 3))
sketch3.addConstraint(Sketcher.Constraint("Vertical", 13, 3, 14, 3))
sketch3.addConstraint(Sketcher.Constraint("Vertical", 12, 3, 15, 3))
sketch3.addConstraint(Sketcher.Constraint("Vertical", 3, 2, 4, 2))
sketch3.addConstraint(Sketcher.Constraint("Vertical", 2, 2, 5, 2))
sketch3.addConstraint(Sketcher.Constraint("Equal", 2, 4))
sketch3.addConstraint(Sketcher.Constraint("Diameter", 8, Q("3 mm")))
sketch3.addConstraint(Sketcher.Constraint("DistanceX", 1, 2, 1, 1, Q("40 mm")))
sketch3.addConstraint(Sketcher.Constraint("DistanceY", 0, 1, 0, 2, Q("6 mm")))
sketch3.addConstraint(Sketcher.Constraint("DistanceY", 9, 3, 10, 3, Q("145 mm")))
sketch3.addConstraint(Sketcher.Constraint("DistanceY", 8, 3, 11, 3, Q("145 mm")))
sketch3.addConstraint(Sketcher.Constraint("DistanceY", 0, 2, 4, 2, Q("114 mm")))
sketch3.addConstraint(Sketcher.Constraint("DistanceX", 12, 3, 11, 3, Q("185.78 mm")))
sketch3.addConstraint(Sketcher.Constraint("DistanceX", 13, 3, 10, 3, Q("185.78 mm")))
sketch3.addConstraint(Sketcher.Constraint("DistanceX", -1, 1, 9, 3, Q("200.838102 mm")))
sketch3.addConstraint(Sketcher.Constraint("DistanceY", -1, 1, 9, 3, Q("53.306762 mm")))
sketch3.addConstraint(Sketcher.Constraint("DistanceY", -1, 1, 0, 2, Q("62.77821 mm")))
sketch3.addConstraint(Sketcher.Constraint("DistanceX", 0, 2, 9, 3, Q("57.252089 mm")))
sketch3.addConstraint(Sketcher.Constraint("DistanceX", 0, 2, 8, 3, Q("88.527911 mm")))
sketch3.addConstraint(Sketcher.Constraint("DistanceY", -1, 1, 8, 3, Q("35.249657 mm")))
pocket2 = body.newObject("PartDesign::Pocket", "Pocket001")
pocket2.Profile = sketch3
pocket2.Type = "ThroughAll"

sketch4 = body.newObject("Sketcher::SketchObject", "Sketch003")
sketch4.AttachmentSupport = (doc.getObject("XZ_Plane"), [""])
sketch4.MapMode = "FlatFace"
sketch4.AttachmentOffset = App.Placement(Vector(0, 0, -6.18), App.Rotation())
sketch4.addGeometry(Part.ArcOfCircle(Part.Circle(Vector(123.586013, 289.27821, 0), Vector(0, 0, 1), 102.5), math.radians(-167.319617), math.radians(-12.680383)), False)
sketch4.addGeometry(Part.LineSegment(Vector(23.586013, 266.77821, 0), Vector(223.586013, 266.77821, 0)), False)
sketch4.addGeometry(Part.LineSegment(Vector(223.586013, -33.22179, 0), Vector(23.586013, -33.22179, 0)), False)
sketch4.addGeometry(Part.ArcOfCircle(Part.Circle(Vector(123.586013, -55.72179, 0), Vector(0, 0, 1), 102.5), math.radians(12.680383), math.radians(167.319617)), False)
sketch4.addConstraint(Sketcher.Constraint("Coincident", 0, 1, 1, 1))
sketch4.addConstraint(Sketcher.Constraint("Coincident", 1, 2, 0, 2))
sketch4.addConstraint(Sketcher.Constraint("Coincident", 2, 1, 3, 1))
sketch4.addConstraint(Sketcher.Constraint("Coincident", 3, 2, 2, 2))
sketch4.addConstraint(Sketcher.Constraint("Horizontal", 1))
sketch4.addConstraint(Sketcher.Constraint("Horizontal", 2))
sketch4.addConstraint(Sketcher.Constraint("Equal", 0, 3))
sketch4.addConstraint(Sketcher.Constraint("Vertical", 0, 3, 3, 3))
sketch4.addConstraint(Sketcher.Constraint("Vertical", 1, 2, 2, 1))
sketch4.addConstraint(Sketcher.Constraint("Radius", 0, Q("102.5 mm")))
sketch4.addConstraint(Sketcher.Constraint("DistanceX", 1, 1, 1, 2, Q("200 mm")))
sketch4.addConstraint(Sketcher.Constraint("DistanceY", 3, 3, 0, 3, Q("345 mm")))
sketch4.addConstraint(Sketcher.Constraint("DistanceY", -1, 1, 0, 3, Q("289.27821 mm")))
sketch4.addConstraint(Sketcher.Constraint("DistanceX", -1, 1, 0, 3, Q("123.586013 mm")))
pocket3 = body.newObject("PartDesign::Pocket", "Pocket002")
pocket3.Profile = sketch4
pocket3.Type = "ThroughAll"
pocket3.Midplane = True

doc.recompute()
